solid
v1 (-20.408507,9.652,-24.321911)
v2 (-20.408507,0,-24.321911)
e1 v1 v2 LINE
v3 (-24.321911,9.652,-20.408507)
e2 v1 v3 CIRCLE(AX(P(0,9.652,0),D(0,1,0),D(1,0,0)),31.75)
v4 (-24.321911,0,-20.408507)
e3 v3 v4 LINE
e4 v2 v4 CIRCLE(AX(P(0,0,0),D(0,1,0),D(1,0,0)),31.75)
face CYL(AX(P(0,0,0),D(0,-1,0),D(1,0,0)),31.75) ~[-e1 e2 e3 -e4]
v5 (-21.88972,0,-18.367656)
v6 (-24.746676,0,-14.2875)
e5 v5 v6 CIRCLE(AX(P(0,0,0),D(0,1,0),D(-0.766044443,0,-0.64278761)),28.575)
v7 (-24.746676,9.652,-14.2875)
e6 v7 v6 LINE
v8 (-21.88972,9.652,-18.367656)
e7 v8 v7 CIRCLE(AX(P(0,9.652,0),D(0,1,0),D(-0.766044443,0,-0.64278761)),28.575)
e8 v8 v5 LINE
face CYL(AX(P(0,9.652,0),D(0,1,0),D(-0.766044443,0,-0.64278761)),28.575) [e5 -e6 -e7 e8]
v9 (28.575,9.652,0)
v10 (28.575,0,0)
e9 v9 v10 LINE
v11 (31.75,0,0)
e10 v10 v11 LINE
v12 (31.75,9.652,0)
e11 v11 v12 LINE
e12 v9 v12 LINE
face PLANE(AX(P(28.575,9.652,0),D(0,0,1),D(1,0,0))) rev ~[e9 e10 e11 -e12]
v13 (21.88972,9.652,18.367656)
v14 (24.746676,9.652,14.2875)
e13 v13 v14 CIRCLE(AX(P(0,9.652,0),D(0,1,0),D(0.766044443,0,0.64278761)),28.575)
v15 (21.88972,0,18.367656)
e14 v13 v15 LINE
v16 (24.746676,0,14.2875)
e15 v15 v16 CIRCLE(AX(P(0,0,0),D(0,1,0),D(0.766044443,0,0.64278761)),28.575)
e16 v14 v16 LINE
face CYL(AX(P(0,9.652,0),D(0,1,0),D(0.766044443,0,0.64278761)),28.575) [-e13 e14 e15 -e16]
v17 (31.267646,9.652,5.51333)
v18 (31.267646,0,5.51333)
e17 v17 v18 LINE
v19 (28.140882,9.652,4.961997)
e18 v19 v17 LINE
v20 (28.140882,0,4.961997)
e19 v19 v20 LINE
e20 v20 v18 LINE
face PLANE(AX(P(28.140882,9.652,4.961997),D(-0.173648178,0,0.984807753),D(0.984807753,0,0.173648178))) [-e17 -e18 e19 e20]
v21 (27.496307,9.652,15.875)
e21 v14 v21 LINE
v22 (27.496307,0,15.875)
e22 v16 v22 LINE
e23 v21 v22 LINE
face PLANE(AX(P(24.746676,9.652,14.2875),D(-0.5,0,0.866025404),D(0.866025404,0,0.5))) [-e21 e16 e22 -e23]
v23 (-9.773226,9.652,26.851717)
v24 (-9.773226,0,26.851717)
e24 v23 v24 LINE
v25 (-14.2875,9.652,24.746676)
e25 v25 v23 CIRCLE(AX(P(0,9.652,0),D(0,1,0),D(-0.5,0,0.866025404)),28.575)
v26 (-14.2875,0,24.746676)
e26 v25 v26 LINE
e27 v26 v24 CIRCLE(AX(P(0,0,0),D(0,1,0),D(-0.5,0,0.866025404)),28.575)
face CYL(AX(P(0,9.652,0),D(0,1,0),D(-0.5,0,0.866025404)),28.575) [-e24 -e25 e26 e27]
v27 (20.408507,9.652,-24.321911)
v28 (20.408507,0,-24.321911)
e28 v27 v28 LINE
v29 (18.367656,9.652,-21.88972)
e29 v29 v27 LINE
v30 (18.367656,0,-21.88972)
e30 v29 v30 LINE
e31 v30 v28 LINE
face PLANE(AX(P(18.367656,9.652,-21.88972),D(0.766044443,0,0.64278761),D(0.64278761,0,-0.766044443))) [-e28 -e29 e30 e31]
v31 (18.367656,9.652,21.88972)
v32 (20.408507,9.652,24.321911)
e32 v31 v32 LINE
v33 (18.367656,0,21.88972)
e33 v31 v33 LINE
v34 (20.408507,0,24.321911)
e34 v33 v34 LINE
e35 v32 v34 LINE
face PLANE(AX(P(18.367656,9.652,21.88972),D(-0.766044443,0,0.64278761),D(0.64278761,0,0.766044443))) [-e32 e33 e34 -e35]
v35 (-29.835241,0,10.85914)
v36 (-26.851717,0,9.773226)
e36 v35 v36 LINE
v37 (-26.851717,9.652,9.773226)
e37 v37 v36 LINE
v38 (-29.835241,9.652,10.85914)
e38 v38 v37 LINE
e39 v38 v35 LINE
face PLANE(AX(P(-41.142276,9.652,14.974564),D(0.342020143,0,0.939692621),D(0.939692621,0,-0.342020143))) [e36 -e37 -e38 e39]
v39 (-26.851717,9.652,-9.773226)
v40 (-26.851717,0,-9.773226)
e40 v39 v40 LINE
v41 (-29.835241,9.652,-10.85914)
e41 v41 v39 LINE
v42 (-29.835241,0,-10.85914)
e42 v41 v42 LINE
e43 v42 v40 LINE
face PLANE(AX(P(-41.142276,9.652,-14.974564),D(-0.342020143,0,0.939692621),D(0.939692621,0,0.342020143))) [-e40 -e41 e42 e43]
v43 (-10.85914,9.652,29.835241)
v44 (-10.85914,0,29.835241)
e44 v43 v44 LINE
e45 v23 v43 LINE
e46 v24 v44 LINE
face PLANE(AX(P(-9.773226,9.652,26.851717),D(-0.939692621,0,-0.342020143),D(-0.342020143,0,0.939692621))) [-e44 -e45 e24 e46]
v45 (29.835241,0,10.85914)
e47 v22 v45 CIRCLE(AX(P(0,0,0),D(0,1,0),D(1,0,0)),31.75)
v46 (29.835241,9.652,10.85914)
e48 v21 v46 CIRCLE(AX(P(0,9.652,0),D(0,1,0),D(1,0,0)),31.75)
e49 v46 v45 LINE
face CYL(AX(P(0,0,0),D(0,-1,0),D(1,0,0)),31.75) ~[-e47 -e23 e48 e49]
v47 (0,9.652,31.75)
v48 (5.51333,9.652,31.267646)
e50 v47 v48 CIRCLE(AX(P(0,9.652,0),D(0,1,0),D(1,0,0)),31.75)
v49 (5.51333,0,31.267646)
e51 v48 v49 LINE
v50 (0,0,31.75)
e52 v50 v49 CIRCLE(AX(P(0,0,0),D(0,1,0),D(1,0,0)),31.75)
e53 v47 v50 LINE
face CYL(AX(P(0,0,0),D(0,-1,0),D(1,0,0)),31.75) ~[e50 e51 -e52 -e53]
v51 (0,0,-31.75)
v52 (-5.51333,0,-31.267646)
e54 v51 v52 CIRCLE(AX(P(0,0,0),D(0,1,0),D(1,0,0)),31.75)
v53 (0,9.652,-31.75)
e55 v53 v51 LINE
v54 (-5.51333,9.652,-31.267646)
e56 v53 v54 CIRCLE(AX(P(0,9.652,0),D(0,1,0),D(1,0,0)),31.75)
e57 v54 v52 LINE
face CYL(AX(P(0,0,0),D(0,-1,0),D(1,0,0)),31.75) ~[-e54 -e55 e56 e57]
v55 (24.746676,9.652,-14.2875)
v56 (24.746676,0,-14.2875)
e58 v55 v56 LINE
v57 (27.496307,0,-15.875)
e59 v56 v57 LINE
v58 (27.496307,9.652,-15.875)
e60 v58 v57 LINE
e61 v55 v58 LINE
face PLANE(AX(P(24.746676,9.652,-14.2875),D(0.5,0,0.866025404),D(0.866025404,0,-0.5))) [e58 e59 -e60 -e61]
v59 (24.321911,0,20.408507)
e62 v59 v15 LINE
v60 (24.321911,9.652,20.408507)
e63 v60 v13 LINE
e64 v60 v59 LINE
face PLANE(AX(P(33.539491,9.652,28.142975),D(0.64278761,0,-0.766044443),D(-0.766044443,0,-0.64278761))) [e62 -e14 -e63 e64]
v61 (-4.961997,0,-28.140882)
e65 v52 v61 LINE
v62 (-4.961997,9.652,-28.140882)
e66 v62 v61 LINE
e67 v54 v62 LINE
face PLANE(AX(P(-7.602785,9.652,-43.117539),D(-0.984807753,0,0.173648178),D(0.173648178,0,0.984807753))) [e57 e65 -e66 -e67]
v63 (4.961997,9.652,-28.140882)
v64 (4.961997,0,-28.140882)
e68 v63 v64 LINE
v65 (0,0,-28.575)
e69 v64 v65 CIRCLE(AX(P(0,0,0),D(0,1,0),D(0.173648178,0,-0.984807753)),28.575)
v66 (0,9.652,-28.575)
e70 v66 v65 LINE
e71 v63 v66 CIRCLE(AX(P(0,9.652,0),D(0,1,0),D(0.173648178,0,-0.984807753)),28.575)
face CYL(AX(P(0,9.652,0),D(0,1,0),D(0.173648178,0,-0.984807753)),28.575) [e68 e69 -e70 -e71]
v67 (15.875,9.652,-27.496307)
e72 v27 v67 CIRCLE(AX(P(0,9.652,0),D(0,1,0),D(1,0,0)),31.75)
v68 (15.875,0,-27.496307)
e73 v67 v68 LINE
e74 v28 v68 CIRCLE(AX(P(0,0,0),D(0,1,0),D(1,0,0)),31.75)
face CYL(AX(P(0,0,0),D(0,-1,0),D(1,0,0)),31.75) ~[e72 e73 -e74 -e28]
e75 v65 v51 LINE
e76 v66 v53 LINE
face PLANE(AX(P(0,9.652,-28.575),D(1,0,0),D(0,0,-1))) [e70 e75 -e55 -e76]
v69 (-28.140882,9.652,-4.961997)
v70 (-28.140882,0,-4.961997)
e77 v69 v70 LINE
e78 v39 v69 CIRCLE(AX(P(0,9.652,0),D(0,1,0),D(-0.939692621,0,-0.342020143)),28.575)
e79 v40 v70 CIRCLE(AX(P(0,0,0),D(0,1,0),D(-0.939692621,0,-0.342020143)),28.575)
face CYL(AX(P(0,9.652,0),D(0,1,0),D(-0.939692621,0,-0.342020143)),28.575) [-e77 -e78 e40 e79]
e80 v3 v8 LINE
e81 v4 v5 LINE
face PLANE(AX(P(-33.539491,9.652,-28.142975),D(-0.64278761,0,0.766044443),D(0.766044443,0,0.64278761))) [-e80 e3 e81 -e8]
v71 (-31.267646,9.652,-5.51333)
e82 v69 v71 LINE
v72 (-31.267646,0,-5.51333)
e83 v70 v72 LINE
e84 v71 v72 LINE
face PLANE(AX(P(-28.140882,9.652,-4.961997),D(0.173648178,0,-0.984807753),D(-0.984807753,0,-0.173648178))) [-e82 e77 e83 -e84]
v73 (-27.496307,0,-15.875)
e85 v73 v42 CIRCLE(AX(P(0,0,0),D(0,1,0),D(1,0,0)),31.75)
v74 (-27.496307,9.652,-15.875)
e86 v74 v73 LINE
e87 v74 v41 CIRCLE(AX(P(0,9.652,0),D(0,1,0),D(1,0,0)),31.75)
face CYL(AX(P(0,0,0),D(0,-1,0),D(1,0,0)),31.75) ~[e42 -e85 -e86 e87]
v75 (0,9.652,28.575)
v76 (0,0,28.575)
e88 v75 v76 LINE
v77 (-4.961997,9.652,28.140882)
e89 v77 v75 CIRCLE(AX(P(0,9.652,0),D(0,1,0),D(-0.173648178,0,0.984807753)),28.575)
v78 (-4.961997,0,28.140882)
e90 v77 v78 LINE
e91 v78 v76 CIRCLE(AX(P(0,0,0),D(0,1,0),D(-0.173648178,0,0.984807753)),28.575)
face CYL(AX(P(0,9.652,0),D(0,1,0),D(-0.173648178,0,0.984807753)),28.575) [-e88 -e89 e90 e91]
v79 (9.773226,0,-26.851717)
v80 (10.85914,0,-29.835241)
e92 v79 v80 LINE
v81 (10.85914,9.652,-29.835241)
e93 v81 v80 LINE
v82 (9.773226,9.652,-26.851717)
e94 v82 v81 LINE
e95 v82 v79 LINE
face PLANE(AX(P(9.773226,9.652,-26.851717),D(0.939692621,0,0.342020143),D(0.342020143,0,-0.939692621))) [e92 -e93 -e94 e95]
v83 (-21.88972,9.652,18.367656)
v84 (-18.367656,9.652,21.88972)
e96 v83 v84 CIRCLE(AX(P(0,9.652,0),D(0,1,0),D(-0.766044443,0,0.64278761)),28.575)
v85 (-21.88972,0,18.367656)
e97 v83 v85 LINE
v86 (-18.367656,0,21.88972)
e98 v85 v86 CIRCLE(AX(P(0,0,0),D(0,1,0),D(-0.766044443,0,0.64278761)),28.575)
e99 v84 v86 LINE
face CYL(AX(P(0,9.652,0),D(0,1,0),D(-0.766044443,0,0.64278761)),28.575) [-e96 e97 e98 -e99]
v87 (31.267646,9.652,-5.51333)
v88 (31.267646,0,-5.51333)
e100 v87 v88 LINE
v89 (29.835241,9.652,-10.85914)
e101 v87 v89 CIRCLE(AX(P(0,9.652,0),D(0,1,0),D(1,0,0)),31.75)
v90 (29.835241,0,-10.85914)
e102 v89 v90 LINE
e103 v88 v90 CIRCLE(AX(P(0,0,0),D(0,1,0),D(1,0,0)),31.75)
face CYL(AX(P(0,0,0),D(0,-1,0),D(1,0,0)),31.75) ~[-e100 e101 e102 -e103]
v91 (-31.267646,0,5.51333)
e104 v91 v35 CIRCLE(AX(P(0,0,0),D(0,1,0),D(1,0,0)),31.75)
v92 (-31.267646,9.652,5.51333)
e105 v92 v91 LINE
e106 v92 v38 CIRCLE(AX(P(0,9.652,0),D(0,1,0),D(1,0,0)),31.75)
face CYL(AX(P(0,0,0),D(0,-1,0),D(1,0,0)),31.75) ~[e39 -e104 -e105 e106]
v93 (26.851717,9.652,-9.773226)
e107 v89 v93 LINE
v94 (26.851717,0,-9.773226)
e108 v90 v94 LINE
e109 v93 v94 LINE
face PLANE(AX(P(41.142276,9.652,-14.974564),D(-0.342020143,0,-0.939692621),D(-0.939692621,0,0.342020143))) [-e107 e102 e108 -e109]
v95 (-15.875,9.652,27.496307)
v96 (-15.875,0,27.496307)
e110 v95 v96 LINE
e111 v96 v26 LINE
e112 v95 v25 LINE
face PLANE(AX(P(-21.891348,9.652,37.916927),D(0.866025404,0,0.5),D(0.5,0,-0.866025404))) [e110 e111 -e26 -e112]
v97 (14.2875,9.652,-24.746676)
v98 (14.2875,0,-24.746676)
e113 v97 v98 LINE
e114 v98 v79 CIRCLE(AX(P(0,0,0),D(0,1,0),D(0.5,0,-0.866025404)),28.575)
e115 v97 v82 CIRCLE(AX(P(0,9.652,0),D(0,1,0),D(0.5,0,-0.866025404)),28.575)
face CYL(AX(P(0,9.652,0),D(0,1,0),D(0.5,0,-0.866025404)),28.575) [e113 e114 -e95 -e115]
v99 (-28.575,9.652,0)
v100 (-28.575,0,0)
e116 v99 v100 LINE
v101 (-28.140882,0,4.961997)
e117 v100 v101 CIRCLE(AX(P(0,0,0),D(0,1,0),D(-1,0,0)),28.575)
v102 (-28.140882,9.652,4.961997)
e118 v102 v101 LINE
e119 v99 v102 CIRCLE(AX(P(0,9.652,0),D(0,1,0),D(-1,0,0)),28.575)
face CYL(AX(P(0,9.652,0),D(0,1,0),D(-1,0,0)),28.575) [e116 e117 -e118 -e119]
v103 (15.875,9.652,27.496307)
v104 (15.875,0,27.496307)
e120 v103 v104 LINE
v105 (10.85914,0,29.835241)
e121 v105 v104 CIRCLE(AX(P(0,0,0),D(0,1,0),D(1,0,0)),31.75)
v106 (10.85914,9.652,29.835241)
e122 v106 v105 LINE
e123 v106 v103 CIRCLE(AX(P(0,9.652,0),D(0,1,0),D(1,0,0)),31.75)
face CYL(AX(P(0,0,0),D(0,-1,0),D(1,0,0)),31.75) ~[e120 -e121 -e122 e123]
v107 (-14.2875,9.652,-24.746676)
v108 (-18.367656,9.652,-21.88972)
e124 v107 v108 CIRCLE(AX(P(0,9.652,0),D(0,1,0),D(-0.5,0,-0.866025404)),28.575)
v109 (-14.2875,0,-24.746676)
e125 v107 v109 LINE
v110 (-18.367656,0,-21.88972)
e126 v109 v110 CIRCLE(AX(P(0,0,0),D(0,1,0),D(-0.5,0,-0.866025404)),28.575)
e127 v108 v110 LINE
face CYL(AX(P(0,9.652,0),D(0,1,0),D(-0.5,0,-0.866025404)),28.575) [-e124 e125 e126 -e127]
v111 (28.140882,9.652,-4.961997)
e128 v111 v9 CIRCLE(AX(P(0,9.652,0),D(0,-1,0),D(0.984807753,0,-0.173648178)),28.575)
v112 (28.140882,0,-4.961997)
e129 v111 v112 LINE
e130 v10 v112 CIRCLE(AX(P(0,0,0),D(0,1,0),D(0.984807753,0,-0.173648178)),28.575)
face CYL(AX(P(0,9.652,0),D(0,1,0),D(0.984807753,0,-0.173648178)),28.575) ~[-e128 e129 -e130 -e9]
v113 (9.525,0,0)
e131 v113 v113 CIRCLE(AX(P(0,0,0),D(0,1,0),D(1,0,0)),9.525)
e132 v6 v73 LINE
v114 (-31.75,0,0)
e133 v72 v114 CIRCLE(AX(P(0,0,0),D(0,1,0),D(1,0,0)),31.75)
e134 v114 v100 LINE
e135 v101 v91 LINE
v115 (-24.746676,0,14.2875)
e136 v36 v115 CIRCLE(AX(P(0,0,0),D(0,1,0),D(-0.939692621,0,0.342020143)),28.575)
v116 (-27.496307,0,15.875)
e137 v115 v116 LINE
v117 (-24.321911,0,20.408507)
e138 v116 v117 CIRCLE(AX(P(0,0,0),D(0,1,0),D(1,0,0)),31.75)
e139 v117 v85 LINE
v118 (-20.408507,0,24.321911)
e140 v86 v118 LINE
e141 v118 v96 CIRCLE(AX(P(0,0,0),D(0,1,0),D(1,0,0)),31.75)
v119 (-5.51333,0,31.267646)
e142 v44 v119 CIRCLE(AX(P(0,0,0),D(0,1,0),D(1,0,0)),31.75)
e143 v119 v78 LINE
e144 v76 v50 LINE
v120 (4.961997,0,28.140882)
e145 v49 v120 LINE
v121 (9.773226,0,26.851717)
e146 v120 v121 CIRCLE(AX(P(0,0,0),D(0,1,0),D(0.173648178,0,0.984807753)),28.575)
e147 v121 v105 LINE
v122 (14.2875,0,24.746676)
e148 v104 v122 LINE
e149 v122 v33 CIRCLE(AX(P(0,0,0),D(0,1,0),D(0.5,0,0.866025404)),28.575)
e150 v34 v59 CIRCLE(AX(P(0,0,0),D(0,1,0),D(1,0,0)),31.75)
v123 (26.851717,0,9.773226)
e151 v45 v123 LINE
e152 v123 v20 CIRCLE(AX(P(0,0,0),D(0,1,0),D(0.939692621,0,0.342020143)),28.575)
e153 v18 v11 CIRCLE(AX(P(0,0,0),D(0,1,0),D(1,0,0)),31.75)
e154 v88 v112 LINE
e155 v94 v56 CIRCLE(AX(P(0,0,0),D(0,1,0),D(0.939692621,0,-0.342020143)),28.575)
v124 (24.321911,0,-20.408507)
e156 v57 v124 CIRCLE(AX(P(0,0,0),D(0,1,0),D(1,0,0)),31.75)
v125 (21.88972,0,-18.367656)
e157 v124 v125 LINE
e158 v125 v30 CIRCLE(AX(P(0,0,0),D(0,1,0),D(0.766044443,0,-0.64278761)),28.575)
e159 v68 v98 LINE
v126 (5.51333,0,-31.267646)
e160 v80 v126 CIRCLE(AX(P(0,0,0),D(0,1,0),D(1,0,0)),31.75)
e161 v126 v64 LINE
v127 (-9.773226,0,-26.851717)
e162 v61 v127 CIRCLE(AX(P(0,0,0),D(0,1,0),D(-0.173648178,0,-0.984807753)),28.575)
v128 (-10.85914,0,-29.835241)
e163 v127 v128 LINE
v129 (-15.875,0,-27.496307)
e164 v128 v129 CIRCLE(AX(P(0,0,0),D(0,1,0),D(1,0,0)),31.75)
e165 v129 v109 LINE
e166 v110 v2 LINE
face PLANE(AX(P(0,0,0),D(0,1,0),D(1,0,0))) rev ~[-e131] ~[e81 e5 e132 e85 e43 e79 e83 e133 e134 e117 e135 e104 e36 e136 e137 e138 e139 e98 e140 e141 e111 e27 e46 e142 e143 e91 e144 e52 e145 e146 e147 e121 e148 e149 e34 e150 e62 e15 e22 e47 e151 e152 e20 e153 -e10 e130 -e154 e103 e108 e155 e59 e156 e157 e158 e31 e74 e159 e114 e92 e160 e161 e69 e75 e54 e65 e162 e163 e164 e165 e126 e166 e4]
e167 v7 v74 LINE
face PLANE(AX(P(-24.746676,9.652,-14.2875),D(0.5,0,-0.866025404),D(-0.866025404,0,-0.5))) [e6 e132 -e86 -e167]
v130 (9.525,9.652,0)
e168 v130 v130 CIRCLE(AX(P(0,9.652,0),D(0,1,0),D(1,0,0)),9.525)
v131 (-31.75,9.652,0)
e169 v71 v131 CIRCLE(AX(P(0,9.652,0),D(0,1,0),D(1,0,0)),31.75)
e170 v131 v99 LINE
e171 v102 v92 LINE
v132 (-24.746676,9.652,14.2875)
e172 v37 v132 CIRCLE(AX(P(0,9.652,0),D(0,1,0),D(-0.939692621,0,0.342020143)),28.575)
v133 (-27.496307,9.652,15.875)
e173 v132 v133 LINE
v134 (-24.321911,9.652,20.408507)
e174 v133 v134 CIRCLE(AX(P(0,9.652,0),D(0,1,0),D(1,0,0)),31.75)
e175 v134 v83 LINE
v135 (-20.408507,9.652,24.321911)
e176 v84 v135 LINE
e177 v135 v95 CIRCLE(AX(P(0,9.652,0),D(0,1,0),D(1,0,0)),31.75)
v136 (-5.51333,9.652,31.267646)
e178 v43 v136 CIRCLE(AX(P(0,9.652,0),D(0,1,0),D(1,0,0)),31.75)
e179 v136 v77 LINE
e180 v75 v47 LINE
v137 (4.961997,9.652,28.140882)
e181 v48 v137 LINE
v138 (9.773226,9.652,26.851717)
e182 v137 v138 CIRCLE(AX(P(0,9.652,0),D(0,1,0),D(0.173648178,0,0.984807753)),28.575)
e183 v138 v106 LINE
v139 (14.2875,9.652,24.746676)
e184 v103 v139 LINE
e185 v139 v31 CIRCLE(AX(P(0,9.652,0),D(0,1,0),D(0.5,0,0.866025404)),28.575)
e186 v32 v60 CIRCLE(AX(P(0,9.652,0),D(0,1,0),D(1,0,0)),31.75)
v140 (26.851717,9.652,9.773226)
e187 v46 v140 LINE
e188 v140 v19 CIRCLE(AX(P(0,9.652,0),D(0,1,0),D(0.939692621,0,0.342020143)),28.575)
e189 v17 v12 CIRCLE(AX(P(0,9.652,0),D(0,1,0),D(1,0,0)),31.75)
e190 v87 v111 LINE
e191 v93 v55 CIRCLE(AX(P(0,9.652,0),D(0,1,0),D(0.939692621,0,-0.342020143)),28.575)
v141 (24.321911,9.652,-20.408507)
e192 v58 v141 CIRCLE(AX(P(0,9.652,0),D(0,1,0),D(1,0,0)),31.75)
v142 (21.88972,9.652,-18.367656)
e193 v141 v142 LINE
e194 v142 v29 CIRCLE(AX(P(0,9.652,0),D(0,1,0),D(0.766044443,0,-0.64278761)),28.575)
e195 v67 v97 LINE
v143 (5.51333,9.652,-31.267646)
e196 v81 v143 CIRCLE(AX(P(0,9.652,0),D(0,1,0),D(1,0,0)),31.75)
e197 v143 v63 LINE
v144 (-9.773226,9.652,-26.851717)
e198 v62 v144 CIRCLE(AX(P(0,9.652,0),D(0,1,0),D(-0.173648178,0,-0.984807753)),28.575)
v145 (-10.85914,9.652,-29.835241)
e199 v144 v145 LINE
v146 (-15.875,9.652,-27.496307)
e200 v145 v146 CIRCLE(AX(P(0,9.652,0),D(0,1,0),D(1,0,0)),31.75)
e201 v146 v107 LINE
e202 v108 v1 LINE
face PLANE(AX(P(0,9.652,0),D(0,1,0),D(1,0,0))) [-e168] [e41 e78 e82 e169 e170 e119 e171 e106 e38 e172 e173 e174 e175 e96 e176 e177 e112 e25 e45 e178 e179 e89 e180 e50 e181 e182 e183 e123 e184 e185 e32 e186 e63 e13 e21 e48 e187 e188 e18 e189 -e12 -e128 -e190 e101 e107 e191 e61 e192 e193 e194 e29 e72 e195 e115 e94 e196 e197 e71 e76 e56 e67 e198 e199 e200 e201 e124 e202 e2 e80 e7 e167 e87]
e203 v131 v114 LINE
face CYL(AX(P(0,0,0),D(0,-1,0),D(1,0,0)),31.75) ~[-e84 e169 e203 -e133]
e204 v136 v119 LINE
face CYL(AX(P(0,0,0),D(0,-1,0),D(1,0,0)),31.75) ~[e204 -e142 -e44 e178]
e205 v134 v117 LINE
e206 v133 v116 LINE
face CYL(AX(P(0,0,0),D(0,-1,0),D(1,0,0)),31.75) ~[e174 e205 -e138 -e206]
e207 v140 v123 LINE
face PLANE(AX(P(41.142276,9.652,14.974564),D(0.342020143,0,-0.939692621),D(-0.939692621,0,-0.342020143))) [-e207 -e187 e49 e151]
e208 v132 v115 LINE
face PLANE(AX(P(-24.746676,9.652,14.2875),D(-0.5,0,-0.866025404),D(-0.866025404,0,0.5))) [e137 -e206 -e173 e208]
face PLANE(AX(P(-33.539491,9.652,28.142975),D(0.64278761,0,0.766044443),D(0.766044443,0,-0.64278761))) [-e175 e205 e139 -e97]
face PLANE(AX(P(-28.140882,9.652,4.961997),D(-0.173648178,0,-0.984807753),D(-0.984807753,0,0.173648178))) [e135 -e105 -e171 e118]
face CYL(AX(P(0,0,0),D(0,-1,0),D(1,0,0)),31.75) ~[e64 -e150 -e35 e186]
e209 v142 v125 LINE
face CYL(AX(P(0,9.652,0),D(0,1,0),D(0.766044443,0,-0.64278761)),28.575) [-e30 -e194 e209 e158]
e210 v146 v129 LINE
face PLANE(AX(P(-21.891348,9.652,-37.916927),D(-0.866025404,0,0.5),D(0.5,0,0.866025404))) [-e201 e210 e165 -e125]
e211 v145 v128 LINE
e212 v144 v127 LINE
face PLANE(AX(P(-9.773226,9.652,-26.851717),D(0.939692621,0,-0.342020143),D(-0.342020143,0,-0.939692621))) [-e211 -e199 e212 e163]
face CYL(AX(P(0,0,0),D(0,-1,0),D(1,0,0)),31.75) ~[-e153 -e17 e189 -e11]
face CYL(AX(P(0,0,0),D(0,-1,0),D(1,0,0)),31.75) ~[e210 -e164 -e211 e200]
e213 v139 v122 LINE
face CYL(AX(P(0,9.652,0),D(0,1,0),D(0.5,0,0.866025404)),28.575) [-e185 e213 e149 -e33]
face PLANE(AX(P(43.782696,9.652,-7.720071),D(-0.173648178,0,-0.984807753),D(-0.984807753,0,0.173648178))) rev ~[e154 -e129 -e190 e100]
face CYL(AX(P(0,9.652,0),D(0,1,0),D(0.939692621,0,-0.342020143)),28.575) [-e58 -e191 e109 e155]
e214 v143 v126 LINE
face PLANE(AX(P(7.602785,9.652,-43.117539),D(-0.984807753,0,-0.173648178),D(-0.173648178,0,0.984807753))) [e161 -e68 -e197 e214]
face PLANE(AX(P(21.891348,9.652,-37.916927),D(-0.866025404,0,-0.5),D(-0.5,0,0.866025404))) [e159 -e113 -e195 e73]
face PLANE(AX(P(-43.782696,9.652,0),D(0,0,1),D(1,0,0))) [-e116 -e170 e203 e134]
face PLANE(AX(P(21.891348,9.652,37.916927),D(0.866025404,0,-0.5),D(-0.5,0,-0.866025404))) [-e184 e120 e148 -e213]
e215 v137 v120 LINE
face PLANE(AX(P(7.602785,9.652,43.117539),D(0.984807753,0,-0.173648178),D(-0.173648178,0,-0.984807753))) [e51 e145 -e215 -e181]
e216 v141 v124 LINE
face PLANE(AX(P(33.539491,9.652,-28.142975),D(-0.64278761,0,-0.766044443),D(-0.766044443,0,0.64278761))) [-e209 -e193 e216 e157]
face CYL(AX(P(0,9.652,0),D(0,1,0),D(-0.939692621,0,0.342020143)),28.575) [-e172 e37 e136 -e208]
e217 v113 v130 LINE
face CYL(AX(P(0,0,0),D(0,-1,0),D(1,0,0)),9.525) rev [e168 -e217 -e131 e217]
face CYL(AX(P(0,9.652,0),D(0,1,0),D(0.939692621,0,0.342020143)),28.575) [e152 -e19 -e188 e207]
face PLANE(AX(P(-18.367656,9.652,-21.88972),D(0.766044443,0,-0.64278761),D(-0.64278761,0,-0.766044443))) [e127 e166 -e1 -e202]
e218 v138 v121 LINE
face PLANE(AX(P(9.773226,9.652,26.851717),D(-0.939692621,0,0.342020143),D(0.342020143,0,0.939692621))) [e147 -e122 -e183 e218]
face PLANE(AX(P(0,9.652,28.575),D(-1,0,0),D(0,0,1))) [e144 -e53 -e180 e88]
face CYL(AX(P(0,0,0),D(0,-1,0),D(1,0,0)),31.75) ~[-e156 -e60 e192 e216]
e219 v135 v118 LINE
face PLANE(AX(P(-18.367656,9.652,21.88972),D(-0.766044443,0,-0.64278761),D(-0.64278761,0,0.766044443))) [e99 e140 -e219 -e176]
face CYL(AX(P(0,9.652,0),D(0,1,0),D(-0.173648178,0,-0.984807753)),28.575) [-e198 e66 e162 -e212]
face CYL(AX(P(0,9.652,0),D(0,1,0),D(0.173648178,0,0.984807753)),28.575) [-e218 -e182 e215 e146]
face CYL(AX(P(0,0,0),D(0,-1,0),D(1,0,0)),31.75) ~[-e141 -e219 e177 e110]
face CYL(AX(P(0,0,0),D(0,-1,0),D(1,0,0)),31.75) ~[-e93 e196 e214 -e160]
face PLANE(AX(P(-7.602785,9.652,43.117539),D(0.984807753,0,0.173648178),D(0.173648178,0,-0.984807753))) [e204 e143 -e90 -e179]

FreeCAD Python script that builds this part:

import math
import FreeCAD as App
import Part
import Sketcher

V = App.Vector
Q = App.Units.Quantity

doc = App.newDocument("Part")
body = doc.addObject("PartDesign::Body", "Body")

sketch1 = doc.addObject("Sketcher::SketchObject", "Sketch")
body.addObject(sketch1)
sketch1.AttachmentSupport = (doc.XZ_Plane, [""])
sketch1.MapMode = "FlatFace"
sketch1.addGeometry(Part.Circle(V(0, 0, 0), V(0, 0, 1), 32), False)
sketch1.addGeometry(Part.Circle(V(0, 0, 0), V(0, 0, 1), 10), False)
sketch1.addConstraint(Sketcher.Constraint("Coincident", 0, 3, -1, 1))
sketch1.addConstraint(Sketcher.Constraint("Coincident", 1, 3, -1, 1))
sketch1.addConstraint(Sketcher.Constraint("Diameter", 0, Q("2.5 in")))
sketch1.addConstraint(Sketcher.Constraint("Diameter", 1, Q("0.75 in")))
pad1 = doc.addObject("PartDesign::Pad", "Pad")
body.addObject(pad1)
pad1.Profile = sketch1
pad1.Length = Q("0.38 in")
pad1.Reversed = True

sketch2 = doc.addObject("Sketcher::SketchObject", "Sketch001")
body.addObject(sketch2)
sketch2.AttachmentSupport = (doc.XZ_Plane, [""])
sketch2.MapMode = "FlatFace"
sketch2.AttachmentOffset = App.Placement(V(0, 0, -0.38 * 25.4), App.Rotation())
sketch2.addGeometry(Part.LineSegment(V(28.6, 0, 0), V(43.8, 0, 0)), False)
sketch2.addGeometry(Part.LineSegment(V(43.8, 0, 0), V(43.8, -7.7, 0)), False)
sketch2.addGeometry(Part.LineSegment(V(43.8, -7.7, 0), V(28.1, -5, 0)), False)
sketch2.addGeometry(Part.ArcOfCircle(Part.Circle(V(0, 0, 0), V(0, 0, 1), 28.6), math.radians(-10), math.radians(0)), False)
sketch2.addGeometry(Part.LineSegment(V(43.8, 7.7, 0), V(28.1, 5, 0)), False)
sketch2.addGeometry(Part.ArcOfCircle(Part.Circle(V(0, 0, 0), V(0, 0, 1), 28.6), math.radians(10), math.radians(20)), False)
sketch2.addGeometry(Part.LineSegment(V(26.9, 9.8, 0), V(41.1, 15, 0)), False)
sketch2.addGeometry(Part.LineSegment(V(41.1, 15, 0), V(43.8, 7.7, 0)), False)
sketch2.addGeometry(Part.LineSegment(V(38.5, 22.2, 0), V(24.7, 14.3, 0)), False)
sketch2.addGeometry(Part.ArcOfCircle(Part.Circle(V(0, 0, 0), V(0, 0, 1), 28.6), math.radians(30), math.radians(40)), False)
sketch2.addGeometry(Part.LineSegment(V(21.9, 18.4, 0), V(33.5, 28.1, 0)), False)
sketch2.addGeometry(Part.LineSegment(V(33.5, 28.1, 0), V(38.5, 22.2, 0)), False)
sketch2.addGeometry(Part.LineSegment(V(28.6, 34.1, 0), V(18.4, 21.9, 0)), False)
sketch2.addGeometry(Part.ArcOfCircle(Part.Circle(V(0, 0, 0), V(0, 0, 1), 28.6), math.radians(50), math.radians(60)), False)
sketch2.addGeometry(Part.LineSegment(V(14.3, 24.7, 0), V(21.9, 37.9, 0)), False)
sketch2.addGeometry(Part.LineSegment(V(21.9, 37.9, 0), V(28.6, 34.1, 0)), False)
sketch2.addGeometry(Part.LineSegment(V(15.2, 41.8, 0), V(9.8, 26.9, 0)), False)
sketch2.addGeometry(Part.ArcOfCircle(Part.Circle(V(0, 0, 0), V(0, 0, 1), 28.6), math.radians(70), math.radians(80)), False)
sketch2.addGeometry(Part.LineSegment(V(5, 28.1, 0), V(7.6, 43.1, 0)), False)
sketch2.addGeometry(Part.LineSegment(V(7.6, 43.1, 0), V(15.2, 41.8, 0)), False)
sketch2.addGeometry(Part.LineSegment(V(0, 44.5, 0), V(0, 28.6, 0)), False)
sketch2.addGeometry(Part.ArcOfCircle(Part.Circle(V(0, 0, 0), V(0, 0, 1), 28.6), math.radians(90), math.radians(100)), False)
sketch2.addGeometry(Part.LineSegment(V(-5, 28.1, 0), V(-7.6, 43.1, 0)), False)
sketch2.addGeometry(Part.LineSegment(V(-7.6, 43.1, 0), V(0, 44.5, 0)), False)
sketch2.addGeometry(Part.LineSegment(V(-15.2, 41.8, 0), V(-9.8, 26.9, 0)), False)
sketch2.addGeometry(Part.ArcOfCircle(Part.Circle(V(0, 0, 0), V(0, 0, 1), 28.6), math.radians(110), math.radians(120)), False)
sketch2.addGeometry(Part.LineSegment(V(-14.3, 24.7, 0), V(-21.9, 37.9, 0)), False)
sketch2.addGeometry(Part.LineSegment(V(-21.9, 37.9, 0), V(-15.2, 41.8, 0)), False)
sketch2.addGeometry(Part.LineSegment(V(-28.6, 34.1, 0), V(-18.4, 21.9, 0)), False)
sketch2.addGeometry(Part.ArcOfCircle(Part.Circle(V(0, 0, 0), V(0, 0, 1), 28.6), math.radians(130), math.radians(140)), False)
sketch2.addGeometry(Part.LineSegment(V(-21.9, 18.4, 0), V(-33.5, 28.1, 0)), False)
sketch2.addGeometry(Part.LineSegment(V(-33.5, 28.1, 0), V(-28.6, 34.1, 0)), False)
sketch2.addGeometry(Part.LineSegment(V(-38.5, 22.2, 0), V(-24.7, 14.3, 0)), False)
sketch2.addGeometry(Part.ArcOfCircle(Part.Circle(V(0, 0, 0), V(0, 0, 1), 28.6), math.radians(150), math.radians(160)), False)
sketch2.addGeometry(Part.LineSegment(V(-26.9, 9.8, 0), V(-41.1, 15, 0)), False)
sketch2.addGeometry(Part.LineSegment(V(-41.1, 15, 0), V(-38.5, 22.2, 0)), False)
sketch2.addGeometry(Part.LineSegment(V(-43.8, 7.7, 0), V(-28.1, 5, 0)), False)
sketch2.addGeometry(Part.ArcOfCircle(Part.Circle(V(0, 0, 0), V(0, 0, 1), 28.6), math.radians(170), math.radians(180)), False)
sketch2.addGeometry(Part.LineSegment(V(-28.6, 0, 0), V(-43.8, 0, 0)), False)
sketch2.addGeometry(Part.LineSegment(V(-43.8, 0, 0), V(-43.8, 7.7, 0)), False)
sketch2.addGeometry(Part.LineSegment(V(-43.8, -7.7, 0), V(-28.1, -5, 0)), False)
sketch2.addGeometry(Part.ArcOfCircle(Part.Circle(V(0, 0, 0), V(0, 0, 1), 28.6), math.radians(-170), math.radians(-160)), False)
sketch2.addGeometry(Part.LineSegment(V(-26.9, -9.8, 0), V(-41.1, -15, 0)), False)
sketch2.addGeometry(Part.LineSegment(V(-41.1, -15, 0), V(-43.8, -7.7, 0)), False)
sketch2.addGeometry(Part.LineSegment(V(-38.5, -22.2, 0), V(-24.7, -14.3, 0)), False)
sketch2.addGeometry(Part.ArcOfCircle(Part.Circle(V(0, 0, 0), V(0, 0, 1), 28.6), math.radians(-150), math.radians(-140)), False)
sketch2.addGeometry(Part.LineSegment(V(-21.9, -18.4, 0), V(-33.5, -28.1, 0)), False)
sketch2.addGeometry(Part.LineSegment(V(-33.5, -28.1, 0), V(-38.5, -22.2, 0)), False)
sketch2.addGeometry(Part.LineSegment(V(-28.6, -34.1, 0), V(-18.4, -21.9, 0)), False)
sketch2.addGeometry(Part.ArcOfCircle(Part.Circle(V(0, 0, 0), V(0, 0, 1), 28.6), math.radians(-130), math.radians(-120)), False)
sketch2.addGeometry(Part.LineSegment(V(-14.3, -24.7, 0), V(-21.9, -37.9, 0)), False)
sketch2.addGeometry(Part.LineSegment(V(-21.9, -37.9, 0), V(-28.6, -34.1, 0)), False)
sketch2.addGeometry(Part.LineSegment(V(-15.2, -41.8, 0), V(-9.8, -26.9, 0)), False)
sketch2.addGeometry(Part.ArcOfCircle(Part.Circle(V(0, 0, 0), V(0, 0, 1), 28.6), math.radians(-110), math.radians(-100)), False)
sketch2.addGeometry(Part.LineSegment(V(-5, -28.1, 0), V(-7.6, -43.1, 0)), False)
sketch2.addGeometry(Part.LineSegment(V(-7.6, -43.1, 0), V(-15.2, -41.8, 0)), False)
sketch2.addGeometry(Part.LineSegment(V(0, -44.5, 0), V(0, -28.6, 0)), False)
sketch2.addGeometry(Part.ArcOfCircle(Part.Circle(V(0, 0, 0), V(0, 0, 1), 28.6), math.radians(-90), math.radians(-80)), False)
sketch2.addGeometry(Part.LineSegment(V(5, -28.1, 0), V(7.6, -43.1, 0)), False)
sketch2.addGeometry(Part.LineSegment(V(7.6, -43.1, 0), V(0, -44.5, 0)), False)
sketch2.addGeometry(Part.LineSegment(V(15.2, -41.8, 0), V(9.8, -26.9, 0)), False)
sketch2.addGeometry(Part.ArcOfCircle(Part.Circle(V(0, 0, 0), V(0, 0, 1), 28.6), math.radians(-70), math.radians(-60)), False)
sketch2.addGeometry(Part.LineSegment(V(14.3, -24.7, 0), V(21.9, -37.9, 0)), False)
sketch2.addGeometry(Part.LineSegment(V(21.9, -37.9, 0), V(15.2, -41.8, 0)), False)
sketch2.addGeometry(Part.LineSegment(V(28.6, -34.1, 0), V(18.4, -21.9, 0)), False)
sketch2.addGeometry(Part.ArcOfCircle(Part.Circle(V(0, 0, 0), V(0, 0, 1), 28.6), math.radians(-50), math.radians(-40)), False)
sketch2.addGeometry(Part.LineSegment(V(21.9, -18.4, 0), V(33.5, -28.1, 0)), False)
sketch2.addGeometry(Part.LineSegment(V(33.5, -28.1, 0), V(28.6, -34.1, 0)), False)
sketch2.addGeometry(Part.LineSegment(V(38.5, -22.2, 0), V(24.7, -14.3, 0)), False)
sketch2.addGeometry(Part.ArcOfCircle(Part.Circle(V(0, 0, 0), V(0, 0, 1), 28.6), math.radians(-30), math.radians(-20)), False)
sketch2.addGeometry(Part.LineSegment(V(26.9, -9.8, 0), V(41.1, -15, 0)), False)
sketch2.addGeometry(Part.LineSegment(V(41.1, -15, 0), V(38.5, -22.2, 0)), False)
sketch2.addConstraint(Sketcher.Constraint("Coincident", 0, 2, 1, 1))
sketch2.addConstraint(Sketcher.Constraint("Coincident", 1, 2, 2, 1))
sketch2.addConstraint(Sketcher.Constraint("Coincident", 2, 2, 3, 1))
sketch2.addConstraint(Sketcher.Constraint("Coincident", 3, 2, 0, 1))
sketch2.addConstraint(Sketcher.Constraint("Coincident", 4, 2, 5, 1))
sketch2.addConstraint(Sketcher.Constraint("Coincident", 5, 2, 6, 1))
sketch2.addConstraint(Sketcher.Constraint("Coincident", 6, 2, 7, 1))
sketch2.addConstraint(Sketcher.Constraint("Coincident", 7, 2, 4, 1))
sketch2.addConstraint(Sketcher.Constraint("Coincident", 8, 2, 9, 1))
sketch2.addConstraint(Sketcher.Constraint("Coincident", 9, 2, 10, 1))
sketch2.addConstraint(Sketcher.Constraint("Coincident", 10, 2, 11, 1))
sketch2.addConstraint(Sketcher.Constraint("Coincident", 11, 2, 8, 1))
sketch2.addConstraint(Sketcher.Constraint("Coincident", 12, 2, 13, 1))
sketch2.addConstraint(Sketcher.Constraint("Coincident", 13, 2, 14, 1))
sketch2.addConstraint(Sketcher.Constraint("Coincident", 14, 2, 15, 1))
sketch2.addConstraint(Sketcher.Constraint("Coincident", 15, 2, 12, 1))
sketch2.addConstraint(Sketcher.Constraint("Coincident", 16, 2, 17, 1))
sketch2.addConstraint(Sketcher.Constraint("Coincident", 17, 2, 18, 1))
sketch2.addConstraint(Sketcher.Constraint("Coincident", 18, 2, 19, 1))
sketch2.addConstraint(Sketcher.Constraint("Coincident", 19, 2, 16, 1))
sketch2.addConstraint(Sketcher.Constraint("Coincident", 20, 2, 21, 1))
sketch2.addConstraint(Sketcher.Constraint("Coincident", 21, 2, 22, 1))
sketch2.addConstraint(Sketcher.Constraint("Coincident", 22, 2, 23, 1))
sketch2.addConstraint(Sketcher.Constraint("Coincident", 23, 2, 20, 1))
sketch2.addConstraint(Sketcher.Constraint("Coincident", 24, 2, 25, 1))
sketch2.addConstraint(Sketcher.Constraint("Coincident", 25, 2, 26, 1))
sketch2.addConstraint(Sketcher.Constraint("Coincident", 26, 2, 27, 1))
sketch2.addConstraint(Sketcher.Constraint("Coincident", 27, 2, 24, 1))
sketch2.addConstraint(Sketcher.Constraint("Coincident", 28, 2, 29, 1))
sketch2.addConstraint(Sketcher.Constraint("Coincident", 29, 2, 30, 1))
sketch2.addConstraint(Sketcher.Constraint("Coincident", 30, 2, 31, 1))
sketch2.addConstraint(Sketcher.Constraint("Coincident", 31, 2, 28, 1))
sketch2.addConstraint(Sketcher.Constraint("Coincident", 32, 2, 33, 1))
sketch2.addConstraint(Sketcher.Constraint("Coincident", 33, 2, 34, 1))
sketch2.addConstraint(Sketcher.Constraint("Coincident", 34, 2, 35, 1))
sketch2.addConstraint(Sketcher.Constraint("Coincident", 35, 2, 32, 1))
sketch2.addConstraint(Sketcher.Constraint("Coincident", 36, 2, 37, 1))
sketch2.addConstraint(Sketcher.Constraint("Coincident", 37, 2, 38, 1))
sketch2.addConstraint(Sketcher.Constraint("Coincident", 38, 2, 39, 1))
sketch2.addConstraint(Sketcher.Constraint("Coincident", 39, 2, 36, 1))
sketch2.addConstraint(Sketcher.Constraint("Coincident", 40, 2, 41, 1))
sketch2.addConstraint(Sketcher.Constraint("Coincident", 41, 2, 42, 1))
sketch2.addConstraint(Sketcher.Constraint("Coincident", 42, 2, 43, 1))
sketch2.addConstraint(Sketcher.Constraint("Coincident", 43, 2, 40, 1))
sketch2.addConstraint(Sketcher.Constraint("Coincident", 44, 2, 45, 1))
sketch2.addConstraint(Sketcher.Constraint("Coincident", 45, 2, 46, 1))
sketch2.addConstraint(Sketcher.Constraint("Coincident", 46, 2, 47, 1))
sketch2.addConstraint(Sketcher.Constraint("Coincident", 47, 2, 44, 1))
sketch2.addConstraint(Sketcher.Constraint("Coincident", 48, 2, 49, 1))
sketch2.addConstraint(Sketcher.Constraint("Coincident", 49, 2, 50, 1))
sketch2.addConstraint(Sketcher.Constraint("Coincident", 50, 2, 51, 1))
sketch2.addConstraint(Sketcher.Constraint("Coincident", 51, 2, 48, 1))
sketch2.addConstraint(Sketcher.Constraint("Coincident", 52, 2, 53, 1))
sketch2.addConstraint(Sketcher.Constraint("Coincident", 53, 2, 54, 1))
sketch2.addConstraint(Sketcher.Constraint("Coincident", 54, 2, 55, 1))
sketch2.addConstraint(Sketcher.Constraint("Coincident", 55, 2, 52, 1))
sketch2.addConstraint(Sketcher.Constraint("Coincident", 56, 2, 57, 1))
sketch2.addConstraint(Sketcher.Constraint("Coincident", 57, 2, 58, 1))
sketch2.addConstraint(Sketcher.Constraint("Coincident", 58, 2, 59, 1))
sketch2.addConstraint(Sketcher.Constraint("Coincident", 59, 2, 56, 1))
sketch2.addConstraint(Sketcher.Constraint("Coincident", 60, 2, 61, 1))
sketch2.addConstraint(Sketcher.Constraint("Coincident", 61, 2, 62, 1))
sketch2.addConstraint(Sketcher.Constraint("Coincident", 62, 2, 63, 1))
sketch2.addConstraint(Sketcher.Constraint("Coincident", 63, 2, 60, 1))
sketch2.addConstraint(Sketcher.Constraint("Coincident", 64, 2, 65, 1))
sketch2.addConstraint(Sketcher.Constraint("Coincident", 65, 2, 66, 1))
sketch2.addConstraint(Sketcher.Constraint("Coincident", 66, 2, 67, 1))
sketch2.addConstraint(Sketcher.Constraint("Coincident", 67, 2, 64, 1))
sketch2.addConstraint(Sketcher.Constraint("Coincident", 68, 2, 69, 1))
sketch2.addConstraint(Sketcher.Constraint("Coincident", 69, 2, 70, 1))
sketch2.addConstraint(Sketcher.Constraint("Coincident", 70, 2, 71, 1))
sketch2.addConstraint(Sketcher.Constraint("Coincident", 71, 2, 68, 1))
sketch2.addConstraint(Sketcher.Constraint("Horizontal", 0))
sketch2.addConstraint(Sketcher.Constraint("Vertical", 1))
sketch2.addConstraint(Sketcher.Constraint("Vertical", 20))
sketch2.addConstraint(Sketcher.Constraint("Horizontal", 38))
sketch2.addConstraint(Sketcher.Constraint("Vertical", 39))
sketch2.addConstraint(Sketcher.Constraint("Vertical", 56))
sketch2.addConstraint(Sketcher.Constraint("Coincident", 3, 3, -1, 1))
sketch2.addConstraint(Sketcher.Constraint("Coincident", 5, 3, -1, 1))
sketch2.addConstraint(Sketcher.Constraint("Coincident", 9, 3, -1, 1))
sketch2.addConstraint(Sketcher.Constraint("Coincident", 13, 3, -1, 1))
sketch2.addConstraint(Sketcher.Constraint("Coincident", 17, 3, -1, 1))
sketch2.addConstraint(Sketcher.Constraint("Coincident", 21, 3, -1, 1))
sketch2.addConstraint(Sketcher.Constraint("Coincident", 25, 3, -1, 1))
sketch2.addConstraint(Sketcher.Constraint("Coincident", 29, 3, -1, 1))
sketch2.addConstraint(Sketcher.Constraint("Coincident", 33, 3, -1, 1))
sketch2.addConstraint(Sketcher.Constraint("Coincident", 37, 3, -1, 1))
sketch2.addConstraint(Sketcher.Constraint("Coincident", 41, 3, -1, 1))
sketch2.addConstraint(Sketcher.Constraint("Coincident", 45, 3, -1, 1))
sketch2.addConstraint(Sketcher.Constraint("Coincident", 49, 3, -1, 1))
sketch2.addConstraint(Sketcher.Constraint("Coincident", 53, 3, -1, 1))
sketch2.addConstraint(Sketcher.Constraint("Coincident", 57, 3, -1, 1))
sketch2.addConstraint(Sketcher.Constraint("Coincident", 61, 3, -1, 1))
sketch2.addConstraint(Sketcher.Constraint("Coincident", 65, 3, -1, 1))
sketch2.addConstraint(Sketcher.Constraint("Coincident", 69, 3, -1, 1))
sketch2.addConstraint(Sketcher.Constraint("Equal", 3, 5))
sketch2.addConstraint(Sketcher.Constraint("Equal", 5, 9))
sketch2.addConstraint(Sketcher.Constraint("Equal", 9, 13))
sketch2.addConstraint(Sketcher.Constraint("Equal", 13, 17))
sketch2.addConstraint(Sketcher.Constraint("Equal", 17, 21))
sketch2.addConstraint(Sketcher.Constraint("Equal", 21, 25))
sketch2.addConstraint(Sketcher.Constraint("Equal", 25, 29))
sketch2.addConstraint(Sketcher.Constraint("Equal", 29, 33))
sketch2.addConstraint(Sketcher.Constraint("Equal", 33, 37))
sketch2.addConstraint(Sketcher.Constraint("Equal", 37, 41))
sketch2.addConstraint(Sketcher.Constraint("Equal", 41, 45))
sketch2.addConstraint(Sketcher.Constraint("Equal", 45, 49))
sketch2.addConstraint(Sketcher.Constraint("Equal", 49, 53))
sketch2.addConstraint(Sketcher.Constraint("Equal", 53, 57))
sketch2.addConstraint(Sketcher.Constraint("Equal", 57, 61))
sketch2.addConstraint(Sketcher.Constraint("Equal", 61, 65))
sketch2.addConstraint(Sketcher.Constraint("Equal", 65, 69))
sketch2.addConstraint(Sketcher.Constraint("Symmetric", 0, 2, 38, 2, -1, 1))
sketch2.addConstraint(Sketcher.Constraint("Symmetric", 6, 2, 42, 2, -1, 1))
sketch2.addConstraint(Sketcher.Constraint("Symmetric", 7, 2, 43, 2, -1, 1))
sketch2.addConstraint(Sketcher.Constraint("Symmetric", 10, 2, 46, 2, -1, 1))
sketch2.addConstraint(Sketcher.Constraint("Symmetric", 11, 2, 47, 2, -1, 1))
sketch2.addConstraint(Sketcher.Constraint("Symmetric", 14, 2, 50, 2, -1, 1))
sketch2.addConstraint(Sketcher.Constraint("Symmetric", 15, 2, 51, 2, -1, 1))
sketch2.addConstraint(Sketcher.Constraint("Symmetric", 18, 2, 54, 2, -1, 1))
sketch2.addConstraint(Sketcher.Constraint("Symmetric", 19, 2, 55, 2, -1, 1))
sketch2.addConstraint(Sketcher.Constraint("Symmetric", 22, 2, 58, 2, -1, 1))
sketch2.addConstraint(Sketcher.Constraint("Symmetric", 23, 2, 59, 2, -1, 1))
sketch2.addConstraint(Sketcher.Constraint("Symmetric", 26, 2, 62, 2, -1, 1))
sketch2.addConstraint(Sketcher.Constraint("Symmetric", 27, 2, 63, 2, -1, 1))
sketch2.addConstraint(Sketcher.Constraint("Symmetric", 30, 2, 66, 2, -1, 1))
sketch2.addConstraint(Sketcher.Constraint("Symmetric", 31, 2, 67, 2, -1, 1))
sketch2.addConstraint(Sketcher.Constraint("Symmetric", 34, 2, 70, 2, -1, 1))
sketch2.addConstraint(Sketcher.Constraint("Symmetric", 35, 2, 71, 2, -1, 1))
sketch2.addConstraint(Sketcher.Constraint("Symmetric", 18, 2, 22, 2, -2))
sketch2.addConstraint(Sketcher.Constraint("Symmetric", 14, 2, 26, 2, -2))
sketch2.addConstraint(Sketcher.Constraint("Symmetric", 19, 2, 27, 2, -2))
sketch2.addConstraint(Sketcher.Constraint("Symmetric", 10, 2, 30, 2, -2))
sketch2.addConstraint(Sketcher.Constraint("Symmetric", 15, 2, 31, 2, -2))
sketch2.addConstraint(Sketcher.Constraint("Symmetric", 6, 2, 34, 2, -2))
sketch2.addConstraint(Sketcher.Constraint("Symmetric", 11, 2, 35, 2, -2))
sketch2.addConstraint(Sketcher.Constraint("Symmetric", 7, 2, 39, 2, -2))
sketch2.addConstraint(Sketcher.Constraint("PointOnObject", 0, 2, -1))
sketch2.addConstraint(Sketcher.Constraint("PointOnObject", 20, 2, -2))
sketch2.addConstraint(Sketcher.Constraint("Perpendicular", 6, 7))
sketch2.addConstraint(Sketcher.Constraint("Perpendicular", 10, 11))
sketch2.addConstraint(Sketcher.Constraint("Perpendicular", 14, 15))
sketch2.addConstraint(Sketcher.Constraint("Perpendicular", 2, 18))
sketch2.addConstraint(Sketcher.Constraint("Perpendicular", 18, 19))
sketch2.addConstraint(Sketcher.Constraint("Perpendicular", 4, 22))
sketch2.addConstraint(Sketcher.Constraint("Perpendicular", 22, 23))
sketch2.addConstraint(Sketcher.Constraint("Parallel", 7, 24))
sketch2.addConstraint(Sketcher.Constraint("Perpendicular", 8, 26))
sketch2.addConstraint(Sketcher.Constraint("Perpendicular", 26, 27))
sketch2.addConstraint(Sketcher.Constraint("Parallel", 11, 28))
sketch2.addConstraint(Sketcher.Constraint("Perpendicular", 12, 30))
sketch2.addConstraint(Sketcher.Constraint("Perpendicular", 30, 31))
sketch2.addConstraint(Sketcher.Constraint("Parallel", 15, 32))
sketch2.addConstraint(Sketcher.Constraint("Perpendicular", 16, 34))
sketch2.addConstraint(Sketcher.Constraint("Perpendicular", 34, 35))
sketch2.addConstraint(Sketcher.Constraint("Parallel", 19, 36))
sketch2.addConstraint(Sketcher.Constraint("Parallel", 23, 40))
sketch2.addConstraint(Sketcher.Constraint("Perpendicular", 24, 42))
sketch2.addConstraint(Sketcher.Constraint("Parallel", 27, 44))
sketch2.addConstraint(Sketcher.Constraint("Perpendicular", 28, 46))
sketch2.addConstraint(Sketcher.Constraint("Parallel", 31, 48))
sketch2.addConstraint(Sketcher.Constraint("Perpendicular", 32, 50))
sketch2.addConstraint(Sketcher.Constraint("Parallel", 35, 52))
sketch2.addConstraint(Sketcher.Constraint("Perpendicular", 36, 54))
sketch2.addConstraint(Sketcher.Constraint("Perpendicular", 40, 58))
sketch2.addConstraint(Sketcher.Constraint("Parallel", 43, 60))
sketch2.addConstraint(Sketcher.Constraint("Perpendicular", 44, 62))
sketch2.addConstraint(Sketcher.Constraint("Parallel", 47, 64))
sketch2.addConstraint(Sketcher.Constraint("Perpendicular", 48, 66))
sketch2.addConstraint(Sketcher.Constraint("Parallel", 51, 68))
sketch2.addConstraint(Sketcher.Constraint("Perpendicular", 52, 70))
sketch2.addConstraint(Sketcher.Constraint("Horizontal", 17, 2, 21, 2))
sketch2.addConstraint(Sketcher.Constraint("Horizontal", 16, 2, 24, 2))
sketch2.addConstraint(Sketcher.Constraint("Horizontal", 13, 2, 25, 2))
sketch2.addConstraint(Sketcher.Constraint("Horizontal", 12, 2, 28, 2))
sketch2.addConstraint(Sketcher.Constraint("Horizontal", 2, 2, 40, 2))
sketch2.addConstraint(Sketcher.Constraint("Equal", 4, 8))
sketch2.addConstraint(Sketcher.Constraint("Equal", 6, 10))
sketch2.addConstraint(Sketcher.Constraint("Equal", 7, 11))
sketch2.addConstraint(Sketcher.Constraint("Equal", 8, 12))
sketch2.addConstraint(Sketcher.Constraint("Equal", 10, 14))
sketch2.addConstraint(Sketcher.Constraint("Equal", 11, 15))
sketch2.addConstraint(Sketcher.Constraint("Equal", 12, 16))
sketch2.addConstraint(Sketcher.Constraint("Equal", 14, 18))
sketch2.addConstraint(Sketcher.Constraint("Equal", 15, 19))
sketch2.addConstraint(Sketcher.Constraint("Equal", 19, 23))
sketch2.addConstraint(Sketcher.Constraint("Equal", 23, 27))
sketch2.addConstraint(Sketcher.Constraint("Angle", 2, Q("170 deg")))
sketch2.addConstraint(Sketcher.Constraint("Radius", 3, Q("1.125 in")))
sketch2.addConstraint(Sketcher.Constraint("DistanceY", 1, 2, 1, 1, Q("7.720071 mm")))
pocket1 = doc.addObject("PartDesign::Pocket", "Pocket")
body.addObject(pocket1)
pocket1.Profile = sketch2
pocket1.Type = "ThroughAll"
pocket1.Reversed = True

doc.recompute()
